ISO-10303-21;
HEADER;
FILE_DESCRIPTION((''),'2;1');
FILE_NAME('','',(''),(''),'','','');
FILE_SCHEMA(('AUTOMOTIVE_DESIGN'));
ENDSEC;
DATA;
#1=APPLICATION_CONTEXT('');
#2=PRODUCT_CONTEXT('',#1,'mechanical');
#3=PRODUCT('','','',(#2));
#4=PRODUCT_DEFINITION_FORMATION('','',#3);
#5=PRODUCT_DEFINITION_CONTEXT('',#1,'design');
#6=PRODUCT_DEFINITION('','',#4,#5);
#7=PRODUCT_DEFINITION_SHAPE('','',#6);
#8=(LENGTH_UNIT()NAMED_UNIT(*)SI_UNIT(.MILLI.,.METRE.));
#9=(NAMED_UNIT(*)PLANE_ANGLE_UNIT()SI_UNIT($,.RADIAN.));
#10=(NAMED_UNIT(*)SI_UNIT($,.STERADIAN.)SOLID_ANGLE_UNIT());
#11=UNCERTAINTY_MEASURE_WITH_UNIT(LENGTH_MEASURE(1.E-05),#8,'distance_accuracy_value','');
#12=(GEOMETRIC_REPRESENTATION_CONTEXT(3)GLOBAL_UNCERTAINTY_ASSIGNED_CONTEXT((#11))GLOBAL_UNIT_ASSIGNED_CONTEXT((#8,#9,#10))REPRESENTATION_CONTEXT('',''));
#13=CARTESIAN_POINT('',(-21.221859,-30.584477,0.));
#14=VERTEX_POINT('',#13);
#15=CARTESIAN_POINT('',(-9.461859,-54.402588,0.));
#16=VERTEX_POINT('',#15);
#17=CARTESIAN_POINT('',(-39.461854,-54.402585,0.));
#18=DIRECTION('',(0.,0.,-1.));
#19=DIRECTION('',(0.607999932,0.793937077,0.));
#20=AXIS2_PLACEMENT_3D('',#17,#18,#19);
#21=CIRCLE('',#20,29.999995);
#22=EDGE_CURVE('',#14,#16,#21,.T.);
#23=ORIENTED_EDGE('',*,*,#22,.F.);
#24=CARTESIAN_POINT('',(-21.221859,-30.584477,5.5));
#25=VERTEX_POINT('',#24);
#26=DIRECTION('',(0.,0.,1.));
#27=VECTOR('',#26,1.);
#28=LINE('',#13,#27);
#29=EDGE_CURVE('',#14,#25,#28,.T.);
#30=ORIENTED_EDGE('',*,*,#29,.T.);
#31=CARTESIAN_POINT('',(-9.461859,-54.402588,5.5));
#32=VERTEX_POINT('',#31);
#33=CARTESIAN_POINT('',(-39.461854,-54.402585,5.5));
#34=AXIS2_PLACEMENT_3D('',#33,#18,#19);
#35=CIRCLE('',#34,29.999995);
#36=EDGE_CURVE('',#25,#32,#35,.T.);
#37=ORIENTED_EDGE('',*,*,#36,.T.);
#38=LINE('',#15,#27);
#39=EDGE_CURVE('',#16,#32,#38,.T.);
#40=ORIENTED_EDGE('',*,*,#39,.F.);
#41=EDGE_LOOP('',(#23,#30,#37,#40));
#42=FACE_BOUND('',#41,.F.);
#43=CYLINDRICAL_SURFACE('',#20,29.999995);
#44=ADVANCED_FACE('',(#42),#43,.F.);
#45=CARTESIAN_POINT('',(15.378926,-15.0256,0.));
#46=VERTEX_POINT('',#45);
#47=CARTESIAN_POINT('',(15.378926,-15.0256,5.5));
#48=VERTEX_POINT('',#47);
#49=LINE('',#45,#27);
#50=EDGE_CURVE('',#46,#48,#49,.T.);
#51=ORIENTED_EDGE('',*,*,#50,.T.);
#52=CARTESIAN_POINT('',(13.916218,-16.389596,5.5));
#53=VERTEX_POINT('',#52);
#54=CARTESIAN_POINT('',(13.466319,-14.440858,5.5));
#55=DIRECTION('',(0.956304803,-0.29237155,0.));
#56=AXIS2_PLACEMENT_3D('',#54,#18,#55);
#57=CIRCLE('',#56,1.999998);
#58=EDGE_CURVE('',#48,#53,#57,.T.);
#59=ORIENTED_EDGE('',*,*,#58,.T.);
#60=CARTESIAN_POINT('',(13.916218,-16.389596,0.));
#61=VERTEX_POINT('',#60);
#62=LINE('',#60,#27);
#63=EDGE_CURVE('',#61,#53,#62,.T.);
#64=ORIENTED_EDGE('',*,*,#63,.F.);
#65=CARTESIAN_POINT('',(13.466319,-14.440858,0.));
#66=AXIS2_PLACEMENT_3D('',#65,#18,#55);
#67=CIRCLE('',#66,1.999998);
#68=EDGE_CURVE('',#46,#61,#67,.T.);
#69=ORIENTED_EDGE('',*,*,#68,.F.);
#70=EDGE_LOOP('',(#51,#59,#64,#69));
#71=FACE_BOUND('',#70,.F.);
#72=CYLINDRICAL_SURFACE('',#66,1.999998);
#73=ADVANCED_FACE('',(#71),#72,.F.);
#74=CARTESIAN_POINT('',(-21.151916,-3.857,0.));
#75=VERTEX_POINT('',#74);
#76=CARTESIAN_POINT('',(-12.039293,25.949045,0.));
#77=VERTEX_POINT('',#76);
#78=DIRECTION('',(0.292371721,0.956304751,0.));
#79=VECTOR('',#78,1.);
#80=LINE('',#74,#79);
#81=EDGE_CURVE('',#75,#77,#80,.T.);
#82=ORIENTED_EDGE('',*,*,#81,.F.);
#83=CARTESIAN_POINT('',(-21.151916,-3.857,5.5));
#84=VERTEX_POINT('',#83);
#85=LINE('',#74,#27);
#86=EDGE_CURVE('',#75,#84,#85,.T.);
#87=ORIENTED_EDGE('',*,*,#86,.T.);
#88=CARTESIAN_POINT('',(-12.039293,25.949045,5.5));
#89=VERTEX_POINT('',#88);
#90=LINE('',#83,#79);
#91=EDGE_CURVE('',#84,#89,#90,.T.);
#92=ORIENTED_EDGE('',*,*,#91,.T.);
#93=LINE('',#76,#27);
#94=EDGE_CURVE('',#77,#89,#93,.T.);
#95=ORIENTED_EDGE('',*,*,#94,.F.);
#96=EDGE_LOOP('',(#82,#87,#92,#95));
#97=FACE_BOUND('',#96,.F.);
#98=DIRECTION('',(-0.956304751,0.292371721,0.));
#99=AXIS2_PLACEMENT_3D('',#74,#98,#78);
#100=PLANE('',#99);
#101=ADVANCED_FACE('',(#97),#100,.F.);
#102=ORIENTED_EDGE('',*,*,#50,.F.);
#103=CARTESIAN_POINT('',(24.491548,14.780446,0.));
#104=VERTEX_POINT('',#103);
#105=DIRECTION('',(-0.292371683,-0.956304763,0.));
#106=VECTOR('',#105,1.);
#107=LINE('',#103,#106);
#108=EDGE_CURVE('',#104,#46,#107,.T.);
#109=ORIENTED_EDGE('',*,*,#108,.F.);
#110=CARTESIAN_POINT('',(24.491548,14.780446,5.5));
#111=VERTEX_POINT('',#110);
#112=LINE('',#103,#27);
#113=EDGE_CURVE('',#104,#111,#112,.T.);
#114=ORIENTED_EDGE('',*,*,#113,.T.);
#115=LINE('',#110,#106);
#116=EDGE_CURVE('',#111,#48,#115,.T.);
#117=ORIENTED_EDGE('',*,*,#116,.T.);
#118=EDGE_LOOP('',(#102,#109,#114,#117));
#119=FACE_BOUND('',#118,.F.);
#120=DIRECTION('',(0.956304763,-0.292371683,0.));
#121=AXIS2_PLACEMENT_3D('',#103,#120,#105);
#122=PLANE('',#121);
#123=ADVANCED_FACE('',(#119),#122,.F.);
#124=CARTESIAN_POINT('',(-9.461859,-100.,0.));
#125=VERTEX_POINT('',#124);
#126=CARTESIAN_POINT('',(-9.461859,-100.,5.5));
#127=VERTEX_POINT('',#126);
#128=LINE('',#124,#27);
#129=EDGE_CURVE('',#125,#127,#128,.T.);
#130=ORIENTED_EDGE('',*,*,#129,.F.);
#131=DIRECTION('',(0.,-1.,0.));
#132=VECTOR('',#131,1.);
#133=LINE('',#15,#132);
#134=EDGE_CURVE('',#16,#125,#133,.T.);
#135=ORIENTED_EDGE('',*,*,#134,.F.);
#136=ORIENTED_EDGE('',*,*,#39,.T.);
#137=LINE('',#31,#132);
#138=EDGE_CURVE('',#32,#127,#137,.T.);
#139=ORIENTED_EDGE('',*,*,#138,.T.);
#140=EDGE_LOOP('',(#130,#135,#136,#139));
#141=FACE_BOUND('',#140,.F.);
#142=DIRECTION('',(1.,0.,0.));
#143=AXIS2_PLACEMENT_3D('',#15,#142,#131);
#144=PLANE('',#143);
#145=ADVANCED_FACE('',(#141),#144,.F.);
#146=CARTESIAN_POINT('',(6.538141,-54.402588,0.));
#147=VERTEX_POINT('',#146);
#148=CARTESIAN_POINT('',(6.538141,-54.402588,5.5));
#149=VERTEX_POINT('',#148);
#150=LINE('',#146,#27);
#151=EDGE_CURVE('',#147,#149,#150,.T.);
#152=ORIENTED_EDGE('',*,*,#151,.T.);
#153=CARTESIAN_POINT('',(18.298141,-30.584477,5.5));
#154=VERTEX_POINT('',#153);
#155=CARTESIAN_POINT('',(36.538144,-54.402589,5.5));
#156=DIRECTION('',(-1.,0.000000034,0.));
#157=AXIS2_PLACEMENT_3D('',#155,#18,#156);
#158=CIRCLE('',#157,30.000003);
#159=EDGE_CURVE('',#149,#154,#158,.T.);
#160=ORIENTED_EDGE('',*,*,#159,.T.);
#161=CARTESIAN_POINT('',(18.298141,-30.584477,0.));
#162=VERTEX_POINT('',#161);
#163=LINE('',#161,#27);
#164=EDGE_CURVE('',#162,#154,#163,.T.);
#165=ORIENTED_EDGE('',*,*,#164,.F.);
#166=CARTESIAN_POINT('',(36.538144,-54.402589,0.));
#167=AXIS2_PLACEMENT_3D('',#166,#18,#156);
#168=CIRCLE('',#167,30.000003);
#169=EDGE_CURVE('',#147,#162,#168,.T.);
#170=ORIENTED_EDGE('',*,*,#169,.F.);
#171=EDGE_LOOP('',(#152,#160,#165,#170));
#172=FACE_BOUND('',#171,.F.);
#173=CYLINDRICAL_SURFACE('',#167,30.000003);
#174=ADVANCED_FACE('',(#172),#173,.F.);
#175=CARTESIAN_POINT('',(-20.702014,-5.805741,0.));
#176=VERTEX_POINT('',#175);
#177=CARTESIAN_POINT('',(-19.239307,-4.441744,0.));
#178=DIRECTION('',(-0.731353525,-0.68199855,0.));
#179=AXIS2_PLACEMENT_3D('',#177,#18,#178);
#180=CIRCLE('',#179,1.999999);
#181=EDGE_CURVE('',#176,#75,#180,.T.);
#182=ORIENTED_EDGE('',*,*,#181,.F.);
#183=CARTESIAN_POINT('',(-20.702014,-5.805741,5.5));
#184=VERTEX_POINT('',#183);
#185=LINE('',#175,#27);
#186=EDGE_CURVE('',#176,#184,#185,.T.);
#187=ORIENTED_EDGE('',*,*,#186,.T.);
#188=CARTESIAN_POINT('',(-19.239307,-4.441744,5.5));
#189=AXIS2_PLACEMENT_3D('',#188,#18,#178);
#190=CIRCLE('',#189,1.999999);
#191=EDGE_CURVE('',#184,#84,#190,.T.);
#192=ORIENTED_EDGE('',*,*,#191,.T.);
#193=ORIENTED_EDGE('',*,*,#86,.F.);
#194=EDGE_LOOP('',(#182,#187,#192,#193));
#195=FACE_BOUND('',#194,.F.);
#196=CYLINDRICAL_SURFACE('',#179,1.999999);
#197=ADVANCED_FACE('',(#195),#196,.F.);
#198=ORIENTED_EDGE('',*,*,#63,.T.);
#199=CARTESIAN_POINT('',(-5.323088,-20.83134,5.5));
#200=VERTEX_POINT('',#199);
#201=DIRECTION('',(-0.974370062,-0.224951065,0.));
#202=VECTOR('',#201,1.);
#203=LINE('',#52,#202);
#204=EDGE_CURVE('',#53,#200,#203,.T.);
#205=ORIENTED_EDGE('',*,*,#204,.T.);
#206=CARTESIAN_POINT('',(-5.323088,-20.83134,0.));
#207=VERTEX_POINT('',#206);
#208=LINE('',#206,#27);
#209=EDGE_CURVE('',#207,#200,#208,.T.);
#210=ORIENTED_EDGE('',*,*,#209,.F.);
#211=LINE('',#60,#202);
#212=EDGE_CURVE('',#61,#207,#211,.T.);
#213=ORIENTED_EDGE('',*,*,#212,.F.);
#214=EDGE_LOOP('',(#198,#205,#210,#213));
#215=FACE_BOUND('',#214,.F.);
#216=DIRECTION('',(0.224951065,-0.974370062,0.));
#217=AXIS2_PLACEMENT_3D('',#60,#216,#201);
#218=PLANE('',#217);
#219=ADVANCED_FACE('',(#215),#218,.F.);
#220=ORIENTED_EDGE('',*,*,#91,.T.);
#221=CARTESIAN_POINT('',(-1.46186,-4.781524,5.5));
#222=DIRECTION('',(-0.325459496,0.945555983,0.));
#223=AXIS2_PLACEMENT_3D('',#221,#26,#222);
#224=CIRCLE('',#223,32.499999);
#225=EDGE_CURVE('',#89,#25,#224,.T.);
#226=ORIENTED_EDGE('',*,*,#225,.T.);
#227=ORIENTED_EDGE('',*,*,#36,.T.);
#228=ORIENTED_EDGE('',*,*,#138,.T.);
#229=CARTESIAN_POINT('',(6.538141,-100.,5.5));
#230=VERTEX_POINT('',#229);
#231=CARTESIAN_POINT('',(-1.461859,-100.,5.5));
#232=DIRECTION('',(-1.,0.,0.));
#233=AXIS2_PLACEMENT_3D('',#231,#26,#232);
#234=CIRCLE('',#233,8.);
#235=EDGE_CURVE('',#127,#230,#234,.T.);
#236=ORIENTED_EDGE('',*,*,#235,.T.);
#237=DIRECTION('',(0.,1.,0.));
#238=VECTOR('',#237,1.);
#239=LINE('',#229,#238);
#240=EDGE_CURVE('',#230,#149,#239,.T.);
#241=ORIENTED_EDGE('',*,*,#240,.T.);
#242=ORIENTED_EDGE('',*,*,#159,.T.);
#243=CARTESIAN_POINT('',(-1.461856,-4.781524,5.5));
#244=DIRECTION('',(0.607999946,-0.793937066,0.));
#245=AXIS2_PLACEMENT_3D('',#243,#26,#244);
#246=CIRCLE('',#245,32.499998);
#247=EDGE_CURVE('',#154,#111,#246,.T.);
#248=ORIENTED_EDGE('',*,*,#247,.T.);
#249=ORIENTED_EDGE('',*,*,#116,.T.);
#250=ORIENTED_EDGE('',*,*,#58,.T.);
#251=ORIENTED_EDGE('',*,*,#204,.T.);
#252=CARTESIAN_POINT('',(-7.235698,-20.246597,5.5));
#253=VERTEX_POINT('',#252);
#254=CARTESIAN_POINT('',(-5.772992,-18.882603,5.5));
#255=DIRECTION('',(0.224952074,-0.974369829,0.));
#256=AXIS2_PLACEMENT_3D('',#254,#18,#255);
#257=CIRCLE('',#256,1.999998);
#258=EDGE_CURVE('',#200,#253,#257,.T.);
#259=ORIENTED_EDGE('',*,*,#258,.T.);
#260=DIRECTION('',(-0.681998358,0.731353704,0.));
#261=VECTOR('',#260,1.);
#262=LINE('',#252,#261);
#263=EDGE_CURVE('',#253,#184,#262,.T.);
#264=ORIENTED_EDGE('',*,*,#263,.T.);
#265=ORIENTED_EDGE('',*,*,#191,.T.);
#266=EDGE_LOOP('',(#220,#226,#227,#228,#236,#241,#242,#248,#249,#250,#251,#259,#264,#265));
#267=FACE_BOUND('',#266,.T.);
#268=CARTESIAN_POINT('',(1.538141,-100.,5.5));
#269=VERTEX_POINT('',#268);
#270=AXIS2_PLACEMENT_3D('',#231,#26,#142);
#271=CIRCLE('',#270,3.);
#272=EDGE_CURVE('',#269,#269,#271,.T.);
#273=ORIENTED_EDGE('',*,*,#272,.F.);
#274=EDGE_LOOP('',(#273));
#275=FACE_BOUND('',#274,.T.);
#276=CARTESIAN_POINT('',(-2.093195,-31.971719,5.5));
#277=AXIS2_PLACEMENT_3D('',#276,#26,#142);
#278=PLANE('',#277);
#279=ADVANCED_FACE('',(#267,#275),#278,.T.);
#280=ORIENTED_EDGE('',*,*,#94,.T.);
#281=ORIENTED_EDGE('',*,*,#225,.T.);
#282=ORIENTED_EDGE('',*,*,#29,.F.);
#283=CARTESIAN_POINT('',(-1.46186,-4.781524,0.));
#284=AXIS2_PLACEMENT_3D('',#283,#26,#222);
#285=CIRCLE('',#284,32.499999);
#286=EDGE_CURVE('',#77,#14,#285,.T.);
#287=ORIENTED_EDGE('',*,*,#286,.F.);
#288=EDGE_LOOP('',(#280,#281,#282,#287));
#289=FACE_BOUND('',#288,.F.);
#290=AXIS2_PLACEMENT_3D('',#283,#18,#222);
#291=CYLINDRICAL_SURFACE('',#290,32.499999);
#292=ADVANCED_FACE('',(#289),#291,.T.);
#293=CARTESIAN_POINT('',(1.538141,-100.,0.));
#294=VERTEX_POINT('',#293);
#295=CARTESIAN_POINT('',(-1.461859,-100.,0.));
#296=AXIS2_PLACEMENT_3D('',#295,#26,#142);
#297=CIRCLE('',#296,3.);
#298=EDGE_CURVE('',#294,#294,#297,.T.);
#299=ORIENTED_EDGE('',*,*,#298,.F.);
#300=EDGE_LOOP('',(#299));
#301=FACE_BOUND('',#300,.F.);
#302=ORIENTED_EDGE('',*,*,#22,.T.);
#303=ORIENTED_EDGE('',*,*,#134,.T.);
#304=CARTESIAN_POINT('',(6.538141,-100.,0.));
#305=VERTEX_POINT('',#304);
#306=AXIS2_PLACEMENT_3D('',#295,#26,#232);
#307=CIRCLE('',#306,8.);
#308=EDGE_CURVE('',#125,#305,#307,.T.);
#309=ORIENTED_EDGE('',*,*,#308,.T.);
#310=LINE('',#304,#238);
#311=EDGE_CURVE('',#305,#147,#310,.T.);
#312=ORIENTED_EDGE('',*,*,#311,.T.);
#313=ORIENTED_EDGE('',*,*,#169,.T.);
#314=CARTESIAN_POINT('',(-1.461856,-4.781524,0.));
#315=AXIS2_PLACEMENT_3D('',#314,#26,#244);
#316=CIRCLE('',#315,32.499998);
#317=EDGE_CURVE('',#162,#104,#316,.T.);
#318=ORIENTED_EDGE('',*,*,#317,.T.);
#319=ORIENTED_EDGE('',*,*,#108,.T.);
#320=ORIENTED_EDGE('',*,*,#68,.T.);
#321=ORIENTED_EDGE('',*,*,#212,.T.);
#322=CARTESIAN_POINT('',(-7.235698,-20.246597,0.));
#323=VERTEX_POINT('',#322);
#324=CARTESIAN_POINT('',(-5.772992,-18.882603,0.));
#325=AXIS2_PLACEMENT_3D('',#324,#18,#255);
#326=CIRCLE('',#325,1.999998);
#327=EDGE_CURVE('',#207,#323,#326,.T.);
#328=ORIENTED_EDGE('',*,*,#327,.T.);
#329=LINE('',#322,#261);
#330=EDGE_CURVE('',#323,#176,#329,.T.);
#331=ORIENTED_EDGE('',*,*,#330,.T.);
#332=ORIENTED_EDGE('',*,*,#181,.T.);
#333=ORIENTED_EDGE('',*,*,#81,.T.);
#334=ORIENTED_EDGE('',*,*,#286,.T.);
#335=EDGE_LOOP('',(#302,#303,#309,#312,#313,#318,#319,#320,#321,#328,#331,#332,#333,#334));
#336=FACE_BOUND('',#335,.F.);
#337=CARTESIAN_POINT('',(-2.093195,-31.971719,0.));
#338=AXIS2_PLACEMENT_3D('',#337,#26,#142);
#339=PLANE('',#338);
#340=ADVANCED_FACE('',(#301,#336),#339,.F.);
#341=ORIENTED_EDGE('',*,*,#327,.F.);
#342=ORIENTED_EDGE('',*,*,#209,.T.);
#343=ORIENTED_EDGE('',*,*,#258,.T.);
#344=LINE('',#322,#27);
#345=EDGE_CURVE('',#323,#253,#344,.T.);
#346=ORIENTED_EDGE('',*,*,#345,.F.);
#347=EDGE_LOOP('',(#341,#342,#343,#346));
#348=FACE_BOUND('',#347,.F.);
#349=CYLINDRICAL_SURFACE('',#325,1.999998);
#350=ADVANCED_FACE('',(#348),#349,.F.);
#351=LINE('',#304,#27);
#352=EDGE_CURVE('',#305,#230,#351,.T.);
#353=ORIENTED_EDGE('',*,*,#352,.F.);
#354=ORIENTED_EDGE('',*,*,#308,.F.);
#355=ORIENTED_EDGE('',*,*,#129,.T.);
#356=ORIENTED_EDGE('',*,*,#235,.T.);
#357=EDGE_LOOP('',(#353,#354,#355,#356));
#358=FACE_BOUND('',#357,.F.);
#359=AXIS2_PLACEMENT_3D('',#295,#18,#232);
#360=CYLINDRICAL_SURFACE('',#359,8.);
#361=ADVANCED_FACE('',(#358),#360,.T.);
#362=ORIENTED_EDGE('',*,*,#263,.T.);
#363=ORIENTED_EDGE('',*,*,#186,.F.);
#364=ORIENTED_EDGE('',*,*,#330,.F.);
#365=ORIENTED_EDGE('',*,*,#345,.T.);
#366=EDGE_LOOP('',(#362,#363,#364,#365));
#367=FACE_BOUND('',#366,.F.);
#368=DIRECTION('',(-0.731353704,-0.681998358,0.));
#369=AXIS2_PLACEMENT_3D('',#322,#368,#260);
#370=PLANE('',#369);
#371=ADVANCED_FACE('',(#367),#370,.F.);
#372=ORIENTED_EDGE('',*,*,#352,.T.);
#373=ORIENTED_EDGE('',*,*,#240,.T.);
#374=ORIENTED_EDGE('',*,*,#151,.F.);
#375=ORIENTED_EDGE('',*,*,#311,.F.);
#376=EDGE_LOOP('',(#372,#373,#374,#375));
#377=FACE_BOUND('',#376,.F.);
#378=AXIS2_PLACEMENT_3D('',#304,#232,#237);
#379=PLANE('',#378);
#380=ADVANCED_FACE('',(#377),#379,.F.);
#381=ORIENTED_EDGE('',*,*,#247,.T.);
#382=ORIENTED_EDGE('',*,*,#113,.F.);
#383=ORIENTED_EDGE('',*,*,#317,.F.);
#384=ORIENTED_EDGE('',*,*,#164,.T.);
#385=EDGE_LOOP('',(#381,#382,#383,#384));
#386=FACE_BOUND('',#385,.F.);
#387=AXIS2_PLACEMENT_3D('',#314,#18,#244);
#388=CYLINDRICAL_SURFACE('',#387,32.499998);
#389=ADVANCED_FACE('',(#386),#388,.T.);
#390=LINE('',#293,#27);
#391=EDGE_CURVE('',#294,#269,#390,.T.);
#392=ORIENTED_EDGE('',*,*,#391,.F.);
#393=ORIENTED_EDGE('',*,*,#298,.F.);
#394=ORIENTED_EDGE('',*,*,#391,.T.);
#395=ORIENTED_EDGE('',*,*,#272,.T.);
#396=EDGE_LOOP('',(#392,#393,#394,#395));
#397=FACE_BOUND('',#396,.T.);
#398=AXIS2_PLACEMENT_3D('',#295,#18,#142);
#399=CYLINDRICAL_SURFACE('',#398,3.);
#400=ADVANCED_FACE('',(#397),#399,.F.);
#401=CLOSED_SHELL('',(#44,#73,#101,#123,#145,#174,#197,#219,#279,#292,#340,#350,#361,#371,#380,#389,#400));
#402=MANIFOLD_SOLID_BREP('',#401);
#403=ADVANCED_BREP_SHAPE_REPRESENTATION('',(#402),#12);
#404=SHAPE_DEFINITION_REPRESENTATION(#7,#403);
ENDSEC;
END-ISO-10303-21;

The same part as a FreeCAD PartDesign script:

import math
import FreeCAD as App
import Part
import Sketcher
Q = App.Units.Quantity

doc = App.newDocument("Part")
params = doc.addObject("Spreadsheet::Sheet", "Params")
for row, (alias, value) in enumerate([
    ("sketch1_diameter", "6 mm"),
    ("sketch1_radius", "1.999999 mm"),
    ("sketch1_radius2", "8 mm"),
    ("sketch1_radius3", "32.499999 mm"),
    ("pad1_length", "5.5 mm"),
], start=1):
    params.set(f"A{row}", alias)
    params.set(f"B{row}", "=" + value)
    params.setAlias(f"B{row}", alias)

body = doc.addObject("PartDesign::Body", "Body")

# Sketch on XY plane
sketch1 = body.newObject("Sketcher::SketchObject", "Sketch")
sketch1.AttachmentSupport = (doc.getObject("XY_Plane"), [""])
sketch1.MapMode = "FlatFace"
sketch1.addGeometry([
    Part.ArcOfCircle(Part.Circle(App.Vector(-1.5, -4.8, 0), App.Vector(0, 0, 1), 32.5), math.radians(-53), math.radians(37)),  # 0
    Part.LineSegment(App.Vector(24.5, 14.8, 0), App.Vector(15.4, -15, 0)),  # 1
    Part.ArcOfCircle(Part.Circle(App.Vector(13.5, -14.4, 0), App.Vector(0, 0, 1), 2), math.radians(-77), math.radians(-17)),  # 2
    Part.LineSegment(App.Vector(13.9, -16.4, 0), App.Vector(-5.3, -20.8, 0)),  # 3
    Part.ArcOfCircle(Part.Circle(App.Vector(-5.8, -18.9, 0), App.Vector(0, 0, 1), 2), math.radians(-137), math.radians(-77)),  # 4
    Part.LineSegment(App.Vector(-7.2, -20.2, 0), App.Vector(-20.7, -5.8, 0)),  # 5
    Part.ArcOfCircle(Part.Circle(App.Vector(-19.2, -4.4, 0), App.Vector(0, 0, 1), 2), math.radians(163), math.radians(223)),  # 6
    Part.LineSegment(App.Vector(-21.2, -3.9, 0), App.Vector(-12, 25.9, 0)),  # 7
    Part.ArcOfCircle(Part.Circle(App.Vector(-1.5, -4.8, 0), App.Vector(0, 0, 1), 32.5), math.radians(109), math.radians(233)),  # 8
    Part.ArcOfCircle(Part.Circle(App.Vector(-39.5, -54.4, 0), App.Vector(0, 0, 1), 30), math.radians(0), math.radians(53)),  # 9
    Part.LineSegment(App.Vector(-9.5, -54.4, 0), App.Vector(-9.5, -100, 0)),  # 10
    Part.ArcOfCircle(Part.Circle(App.Vector(-1.5, -100, 0), App.Vector(0, 0, 1), 8), math.radians(180), math.radians(360)),  # 11
    Part.LineSegment(App.Vector(6.5, -100, 0), App.Vector(6.5, -54.4, 0)),  # 12
    Part.ArcOfCircle(Part.Circle(App.Vector(36.5, -54.4, 0), App.Vector(0, 0, 1), 30), math.radians(127), math.radians(180)),  # 13
    Part.Circle(App.Vector(-1.5, -100, 0), App.Vector(0, 0, 1), 3),  # 14
], False)
sketch1.addConstraint([
    Sketcher.Constraint("Coincident", 0, 2, 1, 1),
    Sketcher.Constraint("Tangent", 1, 2, 2, 2),
    Sketcher.Constraint("Tangent", 2, 1, 3, 1),
    Sketcher.Constraint("Tangent", 3, 2, 4, 2),
    Sketcher.Constraint("Tangent", 4, 1, 5, 1),
    Sketcher.Constraint("Tangent", 5, 2, 6, 2),
    Sketcher.Constraint("Tangent", 6, 1, 7, 1),
    Sketcher.Constraint("Coincident", 7, 2, 8, 1),
    Sketcher.Constraint("Tangent", 8, 2, 9, 2),
    Sketcher.Constraint("Tangent", 9, 1, 10, 1),
    Sketcher.Constraint("Tangent", 10, 2, 11, 1),
    Sketcher.Constraint("Tangent", 11, 2, 12, 1),
    Sketcher.Constraint("Tangent", 12, 2, 13, 2),
    Sketcher.Constraint("Tangent", 13, 1, 0, 1),
    Sketcher.Constraint("Vertical", 10),
    Sketcher.Constraint("Vertical", 12),
    Sketcher.Constraint("Coincident", 8, 3, 0, 3),
    Sketcher.Constraint("Coincident", 14, 3, 11, 3),
    Sketcher.Constraint("Equal", 2, 4),
    Sketcher.Constraint("Equal", 4, 6),
    Sketcher.Constraint("Equal", 0, 8),
    Sketcher.Constraint("Parallel", 1, 7),
    Sketcher.Constraint("Horizontal", 13, 3, 9, 1),
    Sketcher.Constraint("Horizontal", 8, 2, 13, 1),
    Sketcher.Constraint("Equal", 3, 5),
    Sketcher.Constraint("Equal", 1, 7),
    Sketcher.Constraint("Diameter", 14, 6.0),
    Sketcher.Constraint("Radius", 6, 1.999999),
    Sketcher.Constraint("Radius", 11, 8.0),
    Sketcher.Constraint("Radius", 8, 32.499999),
    Sketcher.Constraint("Angle", 1, Q("-106.999999 deg")),
    Sketcher.Constraint("Angle", 3, Q("-166.999999 deg")),
    Sketcher.Constraint("Angle", 5, Q("133 deg")),
    Sketcher.Constraint("DistanceY", 11, 3, -1, 1, 100.0),
    Sketcher.Constraint("DistanceX", 0, 3, 13, 3, 37.999999),
    Sketcher.Constraint("DistanceY", 6, 1, -1, 1, 3.857),
    Sketcher.Constraint("DistanceY", 10, 2, 10, 1, 45.597412),
    Sketcher.Constraint("DistanceY", 1, 2, -1, 1, 15.0256),
    Sketcher.Constraint("DistanceX", 4, 1, -1, 1, 7.235698),
])
sketch1.setExpression("Constraints[26]", "Params.sketch1_diameter")
sketch1.setExpression("Constraints[27]", "Params.sketch1_radius")
sketch1.setExpression("Constraints[28]", "Params.sketch1_radius2")
sketch1.setExpression("Constraints[29]", "Params.sketch1_radius3")
pad1 = body.newObject("PartDesign::Pad", "Pad")
pad1.Profile = sketch1
pad1.setExpression("Length", "Params.pad1_length")

doc.recompute()
